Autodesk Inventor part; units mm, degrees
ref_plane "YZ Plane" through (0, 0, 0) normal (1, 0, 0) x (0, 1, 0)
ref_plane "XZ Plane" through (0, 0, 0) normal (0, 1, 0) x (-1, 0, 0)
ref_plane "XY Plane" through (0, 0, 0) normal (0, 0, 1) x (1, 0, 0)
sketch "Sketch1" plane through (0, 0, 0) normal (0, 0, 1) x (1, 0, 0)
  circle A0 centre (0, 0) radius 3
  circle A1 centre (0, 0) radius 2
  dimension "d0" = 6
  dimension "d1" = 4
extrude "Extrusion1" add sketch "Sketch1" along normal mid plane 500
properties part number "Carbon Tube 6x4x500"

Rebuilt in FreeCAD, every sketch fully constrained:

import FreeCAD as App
import Part
import Sketcher
from FreeCAD import Vector
Q = App.Units.Quantity

doc = App.newDocument("Part")
params = doc.addObject("Spreadsheet::Sheet", "Params")
for row, (alias, value) in enumerate([
    ("sketch1_diameter", "6 mm"),
    ("sketch1_diameter2", "4 mm"),
    ("pad1_length", "500 mm"),
], start=1):
    params.set(f"A{row}", alias)
    params.set(f"B{row}", "=" + value)
    params.setAlias(f"B{row}", alias)

body = doc.addObject("PartDesign::Body", "Body")

# Sketch on XY plane
sketch1 = body.newObject("Sketcher::SketchObject", "Sketch")
sketch1.AttachmentSupport = (doc.getObject("XY_Plane"), [""])
sketch1.MapMode = "FlatFace"
sketch1.addGeometry([
    Part.Circle(Vector(0, 0, 0), Vector(0, 0, 1), 3),
    Part.Circle(Vector(0, 0, 0), Vector(0, 0, 1), 2),
], False)
sketch1.addConstraint([
    Sketcher.Constraint("Coincident", 0, 3, -1, 1),
    Sketcher.Constraint("Coincident", 1, 3, -1, 1),
    Sketcher.Constraint("Diameter", 0, Q("6 mm")),
    Sketcher.Constraint("Diameter", 1, Q("4 mm")),
])
sketch1.setExpression("Constraints[2]", "Params.sketch1_diameter")
sketch1.setExpression("Constraints[3]", "Params.sketch1_diameter2")
pad1 = body.newObject("PartDesign::Pad", "Pad")
pad1.Profile = sketch1
pad1.setExpression("Length", "Params.pad1_length")
pad1.Midplane = True

doc.recompute()
